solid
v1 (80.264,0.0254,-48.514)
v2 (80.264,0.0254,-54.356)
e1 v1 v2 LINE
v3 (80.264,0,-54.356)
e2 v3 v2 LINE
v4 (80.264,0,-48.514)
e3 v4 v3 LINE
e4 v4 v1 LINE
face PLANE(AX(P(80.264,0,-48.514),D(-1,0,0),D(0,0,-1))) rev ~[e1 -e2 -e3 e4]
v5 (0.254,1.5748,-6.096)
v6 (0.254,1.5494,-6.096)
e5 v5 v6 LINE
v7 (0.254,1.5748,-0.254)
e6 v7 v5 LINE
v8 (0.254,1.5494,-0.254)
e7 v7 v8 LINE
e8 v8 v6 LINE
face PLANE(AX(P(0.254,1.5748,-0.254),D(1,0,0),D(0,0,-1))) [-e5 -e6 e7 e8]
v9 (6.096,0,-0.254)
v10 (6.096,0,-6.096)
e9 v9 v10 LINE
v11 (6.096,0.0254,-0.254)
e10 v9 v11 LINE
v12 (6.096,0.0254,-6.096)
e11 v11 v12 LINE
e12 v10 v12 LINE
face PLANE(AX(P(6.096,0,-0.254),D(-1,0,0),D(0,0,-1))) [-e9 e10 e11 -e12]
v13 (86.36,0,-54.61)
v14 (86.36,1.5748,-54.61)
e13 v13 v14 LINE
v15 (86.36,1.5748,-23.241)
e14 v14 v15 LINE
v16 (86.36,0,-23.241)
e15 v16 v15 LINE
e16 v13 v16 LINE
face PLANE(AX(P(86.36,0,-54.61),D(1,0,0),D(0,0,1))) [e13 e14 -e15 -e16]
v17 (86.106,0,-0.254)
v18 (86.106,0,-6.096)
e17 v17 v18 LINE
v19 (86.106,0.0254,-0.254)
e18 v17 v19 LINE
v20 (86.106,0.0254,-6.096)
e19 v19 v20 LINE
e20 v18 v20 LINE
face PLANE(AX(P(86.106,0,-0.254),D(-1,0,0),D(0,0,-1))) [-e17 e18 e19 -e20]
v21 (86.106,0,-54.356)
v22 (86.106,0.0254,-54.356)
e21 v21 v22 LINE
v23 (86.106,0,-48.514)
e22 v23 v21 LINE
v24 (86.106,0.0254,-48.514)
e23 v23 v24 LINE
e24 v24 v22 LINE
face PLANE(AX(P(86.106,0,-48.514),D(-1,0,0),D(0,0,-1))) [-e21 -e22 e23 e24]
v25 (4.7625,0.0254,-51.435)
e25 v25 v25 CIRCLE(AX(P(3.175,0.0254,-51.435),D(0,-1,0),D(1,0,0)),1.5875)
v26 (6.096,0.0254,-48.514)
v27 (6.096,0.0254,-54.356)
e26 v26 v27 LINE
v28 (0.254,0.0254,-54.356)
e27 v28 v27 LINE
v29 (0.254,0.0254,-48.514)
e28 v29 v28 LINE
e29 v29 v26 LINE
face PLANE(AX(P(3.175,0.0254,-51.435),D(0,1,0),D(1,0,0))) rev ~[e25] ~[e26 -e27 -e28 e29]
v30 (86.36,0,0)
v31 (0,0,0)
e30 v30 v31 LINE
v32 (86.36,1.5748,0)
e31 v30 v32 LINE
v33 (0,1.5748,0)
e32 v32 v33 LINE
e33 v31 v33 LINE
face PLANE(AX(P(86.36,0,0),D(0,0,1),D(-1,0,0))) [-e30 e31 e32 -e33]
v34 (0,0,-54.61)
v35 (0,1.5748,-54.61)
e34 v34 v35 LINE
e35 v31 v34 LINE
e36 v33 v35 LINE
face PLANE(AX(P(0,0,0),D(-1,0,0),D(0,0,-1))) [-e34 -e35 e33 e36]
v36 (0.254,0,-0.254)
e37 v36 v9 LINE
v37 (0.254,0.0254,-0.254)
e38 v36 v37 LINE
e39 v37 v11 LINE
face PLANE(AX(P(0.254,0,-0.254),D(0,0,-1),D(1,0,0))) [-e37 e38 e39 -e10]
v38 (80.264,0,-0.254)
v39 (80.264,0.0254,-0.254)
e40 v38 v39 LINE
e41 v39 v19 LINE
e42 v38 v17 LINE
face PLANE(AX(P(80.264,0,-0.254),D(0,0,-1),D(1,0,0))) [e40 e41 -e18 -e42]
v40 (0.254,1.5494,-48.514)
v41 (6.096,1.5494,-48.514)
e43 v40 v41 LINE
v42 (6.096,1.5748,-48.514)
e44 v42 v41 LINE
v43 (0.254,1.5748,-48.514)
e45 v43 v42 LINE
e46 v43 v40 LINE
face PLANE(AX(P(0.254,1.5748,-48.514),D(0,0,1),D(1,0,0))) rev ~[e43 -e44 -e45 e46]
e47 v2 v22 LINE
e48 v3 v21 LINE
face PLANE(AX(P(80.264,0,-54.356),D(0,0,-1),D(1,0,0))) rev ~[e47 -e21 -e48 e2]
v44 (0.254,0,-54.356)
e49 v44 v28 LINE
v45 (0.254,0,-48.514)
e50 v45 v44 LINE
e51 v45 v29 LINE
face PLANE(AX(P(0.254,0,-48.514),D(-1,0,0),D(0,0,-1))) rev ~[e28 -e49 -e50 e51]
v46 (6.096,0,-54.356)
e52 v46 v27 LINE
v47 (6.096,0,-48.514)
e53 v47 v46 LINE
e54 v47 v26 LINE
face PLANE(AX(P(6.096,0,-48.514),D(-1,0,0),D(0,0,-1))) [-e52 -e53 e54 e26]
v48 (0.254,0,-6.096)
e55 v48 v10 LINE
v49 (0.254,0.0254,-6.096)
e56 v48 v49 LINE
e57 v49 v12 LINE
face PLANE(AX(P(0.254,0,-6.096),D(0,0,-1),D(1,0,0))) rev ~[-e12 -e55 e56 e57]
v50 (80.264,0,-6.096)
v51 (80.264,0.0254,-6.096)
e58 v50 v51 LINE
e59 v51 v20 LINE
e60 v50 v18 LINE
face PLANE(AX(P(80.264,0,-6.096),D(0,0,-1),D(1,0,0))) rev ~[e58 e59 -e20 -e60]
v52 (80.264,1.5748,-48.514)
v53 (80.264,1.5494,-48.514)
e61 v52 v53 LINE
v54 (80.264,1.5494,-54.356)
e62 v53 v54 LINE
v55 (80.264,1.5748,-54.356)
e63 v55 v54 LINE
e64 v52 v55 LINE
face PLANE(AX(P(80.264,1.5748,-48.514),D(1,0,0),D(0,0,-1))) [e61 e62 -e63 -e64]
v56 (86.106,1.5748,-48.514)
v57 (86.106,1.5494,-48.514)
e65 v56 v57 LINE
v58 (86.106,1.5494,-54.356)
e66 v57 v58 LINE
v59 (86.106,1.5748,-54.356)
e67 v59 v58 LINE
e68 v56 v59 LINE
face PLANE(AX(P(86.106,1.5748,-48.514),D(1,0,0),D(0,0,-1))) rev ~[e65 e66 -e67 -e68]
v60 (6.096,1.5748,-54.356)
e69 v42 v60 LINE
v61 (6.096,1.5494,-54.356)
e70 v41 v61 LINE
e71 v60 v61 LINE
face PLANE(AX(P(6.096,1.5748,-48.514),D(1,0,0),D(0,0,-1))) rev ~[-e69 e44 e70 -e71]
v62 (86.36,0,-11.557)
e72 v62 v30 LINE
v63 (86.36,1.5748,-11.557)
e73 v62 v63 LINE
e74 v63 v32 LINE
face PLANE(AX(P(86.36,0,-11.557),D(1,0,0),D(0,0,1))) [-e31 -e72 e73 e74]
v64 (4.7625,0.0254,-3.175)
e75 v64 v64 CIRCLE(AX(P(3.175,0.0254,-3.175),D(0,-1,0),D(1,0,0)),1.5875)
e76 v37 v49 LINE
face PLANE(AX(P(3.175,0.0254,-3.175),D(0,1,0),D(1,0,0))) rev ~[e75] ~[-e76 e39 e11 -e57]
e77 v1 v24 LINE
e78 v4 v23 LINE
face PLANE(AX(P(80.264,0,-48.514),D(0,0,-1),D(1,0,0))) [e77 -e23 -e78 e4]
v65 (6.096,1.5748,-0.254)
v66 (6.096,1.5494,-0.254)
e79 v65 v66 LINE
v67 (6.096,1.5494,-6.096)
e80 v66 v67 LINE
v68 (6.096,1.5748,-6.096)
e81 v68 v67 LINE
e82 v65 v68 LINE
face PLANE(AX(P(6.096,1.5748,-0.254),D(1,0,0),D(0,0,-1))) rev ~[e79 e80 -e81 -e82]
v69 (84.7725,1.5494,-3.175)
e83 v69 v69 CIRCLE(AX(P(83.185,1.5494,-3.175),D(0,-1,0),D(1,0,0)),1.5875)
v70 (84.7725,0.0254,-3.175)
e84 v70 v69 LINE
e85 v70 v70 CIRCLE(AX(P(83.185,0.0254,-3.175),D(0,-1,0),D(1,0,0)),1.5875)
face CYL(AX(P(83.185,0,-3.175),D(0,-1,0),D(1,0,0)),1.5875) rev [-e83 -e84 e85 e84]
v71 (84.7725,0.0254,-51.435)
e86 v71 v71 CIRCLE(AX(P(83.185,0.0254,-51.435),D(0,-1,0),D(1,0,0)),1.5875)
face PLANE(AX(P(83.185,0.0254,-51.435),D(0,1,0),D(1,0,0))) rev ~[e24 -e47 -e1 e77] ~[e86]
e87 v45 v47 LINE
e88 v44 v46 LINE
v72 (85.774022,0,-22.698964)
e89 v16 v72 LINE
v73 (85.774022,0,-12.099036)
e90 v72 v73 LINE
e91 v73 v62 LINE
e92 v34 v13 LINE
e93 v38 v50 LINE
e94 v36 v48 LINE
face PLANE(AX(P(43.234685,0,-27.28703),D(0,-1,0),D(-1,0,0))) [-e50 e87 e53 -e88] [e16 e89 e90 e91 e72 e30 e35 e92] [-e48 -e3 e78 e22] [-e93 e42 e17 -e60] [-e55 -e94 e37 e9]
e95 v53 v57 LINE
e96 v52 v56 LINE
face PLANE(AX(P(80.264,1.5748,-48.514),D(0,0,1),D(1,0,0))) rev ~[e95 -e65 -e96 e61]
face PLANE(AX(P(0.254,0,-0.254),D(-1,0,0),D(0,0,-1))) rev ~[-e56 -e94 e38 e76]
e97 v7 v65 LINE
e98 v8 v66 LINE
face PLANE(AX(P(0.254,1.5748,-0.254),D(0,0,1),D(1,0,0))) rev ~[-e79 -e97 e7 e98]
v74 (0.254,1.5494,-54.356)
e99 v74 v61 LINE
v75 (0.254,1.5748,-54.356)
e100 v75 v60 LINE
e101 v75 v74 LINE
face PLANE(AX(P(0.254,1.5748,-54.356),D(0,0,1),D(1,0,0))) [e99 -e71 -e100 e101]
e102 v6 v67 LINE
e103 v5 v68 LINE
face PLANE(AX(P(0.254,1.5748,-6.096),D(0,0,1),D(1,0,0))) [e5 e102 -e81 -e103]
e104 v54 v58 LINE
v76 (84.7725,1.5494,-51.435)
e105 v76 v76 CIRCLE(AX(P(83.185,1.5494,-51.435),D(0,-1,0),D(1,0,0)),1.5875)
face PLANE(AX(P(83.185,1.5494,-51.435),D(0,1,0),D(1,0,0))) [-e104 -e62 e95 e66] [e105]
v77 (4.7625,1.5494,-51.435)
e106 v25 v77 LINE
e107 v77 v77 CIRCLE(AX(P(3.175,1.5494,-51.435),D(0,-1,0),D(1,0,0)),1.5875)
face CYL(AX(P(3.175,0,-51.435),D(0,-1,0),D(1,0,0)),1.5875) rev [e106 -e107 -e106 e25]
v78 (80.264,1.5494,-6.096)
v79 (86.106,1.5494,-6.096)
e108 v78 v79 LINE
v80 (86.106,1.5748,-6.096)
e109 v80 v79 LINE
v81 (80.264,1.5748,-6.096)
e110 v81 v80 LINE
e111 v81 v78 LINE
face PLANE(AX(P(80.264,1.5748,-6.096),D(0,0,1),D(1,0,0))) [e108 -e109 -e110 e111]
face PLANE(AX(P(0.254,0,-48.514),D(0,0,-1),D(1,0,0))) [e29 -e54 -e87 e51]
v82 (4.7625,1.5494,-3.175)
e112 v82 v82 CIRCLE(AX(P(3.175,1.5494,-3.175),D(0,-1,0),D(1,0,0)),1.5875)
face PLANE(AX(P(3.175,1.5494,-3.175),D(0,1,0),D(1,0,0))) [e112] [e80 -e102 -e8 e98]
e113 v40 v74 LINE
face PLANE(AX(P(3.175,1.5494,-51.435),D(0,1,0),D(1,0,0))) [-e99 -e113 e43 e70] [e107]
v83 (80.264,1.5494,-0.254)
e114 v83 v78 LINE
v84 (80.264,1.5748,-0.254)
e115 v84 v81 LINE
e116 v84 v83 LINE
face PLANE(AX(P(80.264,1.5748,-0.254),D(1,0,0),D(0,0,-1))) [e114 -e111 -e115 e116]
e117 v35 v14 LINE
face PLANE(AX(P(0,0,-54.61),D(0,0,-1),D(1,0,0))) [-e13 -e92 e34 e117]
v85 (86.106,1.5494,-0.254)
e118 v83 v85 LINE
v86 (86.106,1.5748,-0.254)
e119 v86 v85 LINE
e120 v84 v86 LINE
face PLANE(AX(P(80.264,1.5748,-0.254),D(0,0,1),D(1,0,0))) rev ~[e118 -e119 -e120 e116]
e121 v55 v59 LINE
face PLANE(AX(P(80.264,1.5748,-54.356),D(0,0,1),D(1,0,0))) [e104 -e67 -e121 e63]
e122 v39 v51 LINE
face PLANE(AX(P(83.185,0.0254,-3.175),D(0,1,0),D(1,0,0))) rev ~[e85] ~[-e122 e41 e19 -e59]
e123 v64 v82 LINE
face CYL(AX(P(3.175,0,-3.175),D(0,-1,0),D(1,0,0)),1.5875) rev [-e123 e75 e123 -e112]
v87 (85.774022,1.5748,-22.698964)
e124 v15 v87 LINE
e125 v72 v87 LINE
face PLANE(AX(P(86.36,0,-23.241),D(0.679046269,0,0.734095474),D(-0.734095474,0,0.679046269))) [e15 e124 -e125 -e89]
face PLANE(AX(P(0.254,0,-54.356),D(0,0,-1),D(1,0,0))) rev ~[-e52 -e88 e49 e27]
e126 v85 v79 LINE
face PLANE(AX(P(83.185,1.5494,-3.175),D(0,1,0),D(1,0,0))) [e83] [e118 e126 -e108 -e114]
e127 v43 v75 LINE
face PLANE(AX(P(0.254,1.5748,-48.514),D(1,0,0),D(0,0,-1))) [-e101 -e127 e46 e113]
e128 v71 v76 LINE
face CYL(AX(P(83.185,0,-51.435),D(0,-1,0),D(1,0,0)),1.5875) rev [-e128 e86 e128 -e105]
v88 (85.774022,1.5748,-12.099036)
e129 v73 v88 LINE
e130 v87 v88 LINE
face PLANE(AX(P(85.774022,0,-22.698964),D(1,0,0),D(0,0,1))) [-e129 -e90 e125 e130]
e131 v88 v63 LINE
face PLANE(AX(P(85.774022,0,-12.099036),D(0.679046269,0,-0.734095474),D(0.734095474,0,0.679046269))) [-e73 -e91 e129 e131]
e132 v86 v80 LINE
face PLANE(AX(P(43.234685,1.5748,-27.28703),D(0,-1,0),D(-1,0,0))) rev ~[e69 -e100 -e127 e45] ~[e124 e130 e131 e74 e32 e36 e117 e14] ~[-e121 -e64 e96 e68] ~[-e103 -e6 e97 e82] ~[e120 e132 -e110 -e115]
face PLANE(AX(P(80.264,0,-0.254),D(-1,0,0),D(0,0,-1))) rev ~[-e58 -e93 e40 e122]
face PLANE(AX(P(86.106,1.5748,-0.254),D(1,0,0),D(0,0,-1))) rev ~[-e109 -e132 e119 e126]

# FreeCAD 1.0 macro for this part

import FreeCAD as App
import Part
import Sketcher
from FreeCAD import Vector
Q = App.Units.Quantity


def add_polygon(sketch, points):
    """Adds a closed chain of lines whose ends are joined by coincident constraints."""
    first, n = sketch.GeometryCount, len(points)
    for a, b in zip(points, points[1:] + points[:1]):
        sketch.addGeometry(Part.LineSegment(App.Vector(*a, 0), App.Vector(*b, 0)), False)
    for i in range(n):
        sketch.addConstraint(Sketcher.Constraint("Coincident", first + i, 2, first + (i + 1) % n, 1))

doc = App.newDocument("Part")
body = doc.addObject("PartDesign::Body", "Body")

# Sketch on XZ plane
sketch1 = body.newObject("Sketcher::SketchObject", "Sketch")
sketch1.AttachmentSupport = (doc.getObject("XZ_Plane"), [""])
sketch1.MapMode = "FlatFace"
add_polygon(sketch1, [(85.8, -12.1), (85.8, -22.7), (86.4, -23.2), (86.4, -54.6), (0, -54.6), (0, 0), (86.4, 0), (86.4, -11.6)])  # lines 0-7
sketch1.addGeometry(Part.Circle(Vector(83.2, -3.2, 0), Vector(0, 0, 1), 1.6), False)  # 8
sketch1.addGeometry(Part.Circle(Vector(3.2, -3.2, 0), Vector(0, 0, 1), 1.6), False)  # 9
sketch1.addGeometry(Part.Circle(Vector(83.2, -51.4, 0), Vector(0, 0, 1), 1.6), False)  # 10
sketch1.addGeometry(Part.Circle(Vector(3.2, -51.4, 0), Vector(0, 0, 1), 1.6), False)  # 11
sketch1.addConstraint([
    Sketcher.Constraint("Vertical", 0),
    Sketcher.Constraint("Vertical", 2),
    Sketcher.Constraint("Horizontal", 3),
    Sketcher.Constraint("Vertical", 4),
    Sketcher.Constraint("Horizontal", 5),
    Sketcher.Constraint("Vertical", 6),
    Sketcher.Constraint("Coincident", 4, 2, -1, 1),
    Sketcher.Constraint("Equal", 8, 9),
    Sketcher.Constraint("Equal", 9, 10),
    Sketcher.Constraint("Equal", 10, 11),
    Sketcher.Constraint("Horizontal", 8, 3, 9, 3),
    Sketcher.Constraint("Horizontal", 10, 3, 11, 3),
    Sketcher.Constraint("Vertical", 8, 3, 10, 3),
    Sketcher.Constraint("Vertical", 9, 3, 11, 3),
    Sketcher.Constraint("Vertical", 2, 2, 5, 2),
    Sketcher.Constraint("Equal", 1, 7),
    Sketcher.Constraint("Diameter", 8, Q("0.125 in")),
    Sketcher.Constraint("DistanceX", 3, 2, 3, 1, Q("3.4 in")),
    Sketcher.Constraint("DistanceY", 4, 1, 4, 2, Q("2.15 in")),
    Sketcher.Constraint("DistanceY", 10, 3, 8, 3, Q("1.9 in")),
    Sketcher.Constraint("DistanceY", 2, 2, 2, 1, Q("1.235 in")),
    Sketcher.Constraint("DistanceY", 6, 2, 6, 1, Q("0.455 in")),
    Sketcher.Constraint("DistanceX", 9, 3, 8, 3, Q("3.15 in")),
    Sketcher.Constraint("DistanceY", 1, 2, 8, 3, Q("0.79 in")),
    Sketcher.Constraint("DistanceX", -1, 1, 8, 3, Q("3.275 in")),
    Sketcher.Constraint("Distance", 1, Q("0.798231 mm")),
    Sketcher.Constraint("DistanceY", 0, 2, 0, 1, Q("10.599928 mm")),
])
pad1 = body.newObject("PartDesign::Pad", "Pad")
pad1.Profile = sketch1
pad1.Length = Q("0.062 in")
pad1.Reversed = True

# Sketch on XZ plane
sketch2 = body.newObject("Sketcher::SketchObject", "Sketch001")
sketch2.AttachmentSupport = (doc.getObject("XZ_Plane"), [""])
sketch2.MapMode = "FlatFace"
sketch2.AttachmentOffset = App.Placement(Vector(0, 0, -0.062 * 25.4), App.Rotation())
add_polygon(sketch2, [(0, -54), (0, -49), (6, -49), (6, -54)])  # lines 0-3
add_polygon(sketch2, [(0, -6), (0, 0), (6, 0), (6, -6)])  # lines 4-7
add_polygon(sketch2, [(80, -6), (80, 0), (86, 0), (86, -6)])  # lines 8-11
add_polygon(sketch2, [(80, -54), (80, -49), (86, -49), (86, -54)])  # lines 12-15
sketch2.addConstraint([
    Sketcher.Constraint("Vertical", 0),
    Sketcher.Constraint("Horizontal", 1),
    Sketcher.Constraint("Vertical", 2),
    Sketcher.Constraint("Horizontal", 3),
    Sketcher.Constraint("Vertical", 4),
    Sketcher.Constraint("Horizontal", 5),
    Sketcher.Constraint("Vertical", 6),
    Sketcher.Constraint("Horizontal", 7),
    Sketcher.Constraint("Vertical", 8),
    Sketcher.Constraint("Horizontal", 9),
    Sketcher.Constraint("Vertical", 10),
    Sketcher.Constraint("Horizontal", 11),
    Sketcher.Constraint("Vertical", 12),
    Sketcher.Constraint("Horizontal", 13),
    Sketcher.Constraint("Vertical", 14),
    Sketcher.Constraint("Horizontal", 15),
    Sketcher.Constraint("Horizontal", 5, 2, 8, 2),
    Sketcher.Constraint("Horizontal", 7, 2, 10, 2),
    Sketcher.Constraint("Horizontal", 1, 2, 12, 2),
    Sketcher.Constraint("Horizontal", 3, 2, 14, 2),
    Sketcher.Constraint("Vertical", 3, 2, 4, 2),
    Sketcher.Constraint("Vertical", 2, 2, 5, 2),
    Sketcher.Constraint("Vertical", 11, 2, 12, 2),
    Sketcher.Constraint("Vertical", 10, 2, 13, 2),
    Sketcher.Constraint("Equal", 7, 9),
    Sketcher.Constraint("Equal", 15, 0),
    Sketcher.Constraint("Equal", 2, 4),
    Sketcher.Constraint("DistanceX", 1, 1, 1, 2, Q("0.23 in")),
    Sketcher.Constraint("DistanceY", 0, 2, 4, 2, Q("1.9 in")),
    Sketcher.Constraint("DistanceX", -1, 1, 0, 2, Q("0.01 in")),
    Sketcher.Constraint("DistanceY", 0, 2, -1, 1, Q("1.91 in")),
    Sketcher.Constraint("DistanceX", -1, 1, 8, 2, Q("3.16 in")),
])
pocket1 = body.newObject("PartDesign::Pocket", "Pocket")
pocket1.Profile = sketch2
pocket1.Length = Q("0.001 in")
pocket1.Reversed = True

# Sketch on XZ plane
sketch3 = body.newObject("Sketcher::SketchObject", "Sketch002")
sketch3.AttachmentSupport = (doc.getObject("XZ_Plane"), [""])
sketch3.MapMode = "FlatFace"
add_polygon(sketch3, [(0, -54), (0, -49), (6, -49), (6, -54)])  # lines 0-3
add_polygon(sketch3, [(0, -6), (0, 0), (6, 0), (6, -6)])  # lines 4-7
add_polygon(sketch3, [(80, -6), (80, 0), (86, 0), (86, -6)])  # lines 8-11
add_polygon(sketch3, [(80, -54), (80, -49), (86, -49), (86, -54)])  # lines 12-15
sketch3.addConstraint([
    Sketcher.Constraint("Vertical", 0),
    Sketcher.Constraint("Horizontal", 1),
    Sketcher.Constraint("Vertical", 2),
    Sketcher.Constraint("Horizontal", 3),
    Sketcher.Constraint("Vertical", 4),
    Sketcher.Constraint("Horizontal", 5),
    Sketcher.Constraint("Vertical", 6),
    Sketcher.Constraint("Horizontal", 7),
    Sketcher.Constraint("Vertical", 8),
    Sketcher.Constraint("Horizontal", 9),
    Sketcher.Constraint("Vertical", 10),
    Sketcher.Constraint("Horizontal", 11),
    Sketcher.Constraint("Vertical", 12),
    Sketcher.Constraint("Horizontal", 13),
    Sketcher.Constraint("Vertical", 14),
    Sketcher.Constraint("Horizontal", 15),
    Sketcher.Constraint("Horizontal", 5, 2, 8, 2),
    Sketcher.Constraint("Horizontal", 7, 2, 10, 2),
    Sketcher.Constraint("Horizontal", 1, 2, 12, 2),
    Sketcher.Constraint("Horizontal", 3, 2, 14, 2),
    Sketcher.Constraint("Vertical", 3, 2, 4, 2),
    Sketcher.Constraint("Vertical", 2, 2, 5, 2),
    Sketcher.Constraint("Vertical", 11, 2, 12, 2),
    Sketcher.Constraint("Vertical", 10, 2, 13, 2),
    Sketcher.Constraint("Equal", 7, 9),
    Sketcher.Constraint("Equal", 15, 0),
    Sketcher.Constraint("Equal", 2, 4),
    Sketcher.Constraint("DistanceX", 1, 1, 1, 2, Q("0.23 in")),
    Sketcher.Constraint("DistanceY", 0, 2, 4, 2, Q("1.9 in")),
    Sketcher.Constraint("DistanceX", -1, 1, 0, 2, Q("0.01 in")),
    Sketcher.Constraint("DistanceY", 0, 2, -1, 1, Q("1.91 in")),
    Sketcher.Constraint("DistanceX", -1, 1, 8, 2, Q("3.16 in")),
])
pocket2 = body.newObject("PartDesign::Pocket", "Pocket001")
pocket2.Profile = sketch3
pocket2.Length = Q("0.001 in")

doc.recompute()
